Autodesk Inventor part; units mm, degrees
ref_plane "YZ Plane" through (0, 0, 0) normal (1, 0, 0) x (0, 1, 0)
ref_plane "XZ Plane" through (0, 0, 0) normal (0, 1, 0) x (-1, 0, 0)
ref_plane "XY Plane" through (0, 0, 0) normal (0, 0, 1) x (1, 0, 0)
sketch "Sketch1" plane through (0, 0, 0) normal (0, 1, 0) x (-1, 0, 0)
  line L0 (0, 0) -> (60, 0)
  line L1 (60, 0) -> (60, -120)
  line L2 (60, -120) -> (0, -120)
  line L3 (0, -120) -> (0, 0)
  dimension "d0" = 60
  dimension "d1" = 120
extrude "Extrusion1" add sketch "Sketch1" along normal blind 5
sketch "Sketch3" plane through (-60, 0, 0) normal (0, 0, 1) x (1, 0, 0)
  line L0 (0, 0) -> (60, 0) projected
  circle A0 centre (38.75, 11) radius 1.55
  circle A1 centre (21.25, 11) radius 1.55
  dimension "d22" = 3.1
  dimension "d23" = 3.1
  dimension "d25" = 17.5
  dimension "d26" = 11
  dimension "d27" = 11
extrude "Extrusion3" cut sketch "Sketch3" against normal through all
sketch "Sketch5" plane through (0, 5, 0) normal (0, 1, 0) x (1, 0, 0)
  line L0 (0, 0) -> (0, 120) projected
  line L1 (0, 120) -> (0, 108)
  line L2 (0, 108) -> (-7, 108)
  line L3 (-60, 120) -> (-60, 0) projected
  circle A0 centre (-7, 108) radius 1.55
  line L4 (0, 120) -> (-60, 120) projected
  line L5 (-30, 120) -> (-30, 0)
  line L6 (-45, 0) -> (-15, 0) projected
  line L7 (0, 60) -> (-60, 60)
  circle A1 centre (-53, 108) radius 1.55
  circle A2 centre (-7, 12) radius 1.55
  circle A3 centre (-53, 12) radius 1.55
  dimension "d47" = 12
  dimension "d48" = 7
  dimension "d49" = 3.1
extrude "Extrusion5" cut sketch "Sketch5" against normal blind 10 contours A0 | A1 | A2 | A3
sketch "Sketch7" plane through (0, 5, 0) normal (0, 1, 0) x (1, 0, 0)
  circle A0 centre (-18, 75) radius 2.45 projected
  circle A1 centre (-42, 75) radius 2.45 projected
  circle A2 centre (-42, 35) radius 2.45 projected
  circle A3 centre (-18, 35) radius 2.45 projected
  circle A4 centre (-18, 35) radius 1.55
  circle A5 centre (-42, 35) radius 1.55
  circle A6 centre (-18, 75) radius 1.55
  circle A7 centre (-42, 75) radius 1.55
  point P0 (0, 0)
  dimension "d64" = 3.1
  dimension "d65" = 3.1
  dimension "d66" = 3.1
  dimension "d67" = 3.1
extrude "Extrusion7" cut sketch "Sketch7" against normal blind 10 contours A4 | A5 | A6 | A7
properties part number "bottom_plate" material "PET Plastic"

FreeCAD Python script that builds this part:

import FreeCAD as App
import Part
import Sketcher

V = App.Vector


def add_polygon(sketch, points):
    """Adds a closed chain of lines whose ends are joined by coincident constraints."""
    first, n = sketch.GeometryCount, len(points)
    for a, b in zip(points, points[1:] + points[:1]):
        sketch.addGeometry(Part.LineSegment(App.Vector(*a, 0), App.Vector(*b, 0)), False)
    for i in range(n):
        sketch.addConstraint(Sketcher.Constraint("Coincident", first + i, 2, first + (i + 1) % n, 1))

doc = App.newDocument("Part")
body = doc.addObject("PartDesign::Body", "Body")

sketch1 = body.newObject("Sketcher::SketchObject", "Sketch")
sketch1.AttachmentSupport = (doc.getObject("XZ_Plane"), [""])
sketch1.MapMode = "FlatFace"
add_polygon(sketch1, [(-60, 0), (0, 0), (0, -120), (-60, -120)])
sketch1.addConstraint(Sketcher.Constraint("Horizontal", 0))
sketch1.addConstraint(Sketcher.Constraint("Vertical", 1))
sketch1.addConstraint(Sketcher.Constraint("Horizontal", 2))
sketch1.addConstraint(Sketcher.Constraint("Vertical", 3))
sketch1.addConstraint(Sketcher.Constraint("Coincident", 0, 2, -1, 1))
sketch1.addConstraint(Sketcher.Constraint("DistanceX", 0, 1, 0, 2, 60.0))
sketch1.addConstraint(Sketcher.Constraint("DistanceY", 1, 2, 1, 1, 120.0))
pad1 = body.newObject("PartDesign::Pad", "Pad")
pad1.Profile = sketch1
pad1.Length = 5
pad1.Reversed = True

sketch2 = body.newObject("Sketcher::SketchObject", "Sketch001")
sketch2.AttachmentSupport = (doc.getObject("XY_Plane"), [""])
sketch2.MapMode = "FlatFace"
sketch2.addGeometry(Part.Circle(V(-21.2, 11, 0), V(0, 0, 1), 1.6), False)
sketch2.addGeometry(Part.Circle(V(-38.8, 11, 0), V(0, 0, 1), 1.6), False)
sketch2.addConstraint(Sketcher.Constraint("Equal", 0, 1))
sketch2.addConstraint(Sketcher.Constraint("Horizontal", 0, 3, 1, 3))
sketch2.addConstraint(Sketcher.Constraint("Diameter", 0, 3.1))
sketch2.addConstraint(Sketcher.Constraint("DistanceY", -1, 1, 0, 3, 11.0))
sketch2.addConstraint(Sketcher.Constraint("DistanceX", 1, 3, 0, 3, 17.5))
sketch2.addConstraint(Sketcher.Constraint("DistanceX", 0, 3, -1, 1, 21.25))
pocket1 = body.newObject("PartDesign::Pocket", "Pocket")
pocket1.Profile = sketch2
pocket1.Type = "ThroughAll"

sketch3 = body.newObject("Sketcher::SketchObject", "Sketch002")
sketch3.AttachmentSupport = (doc.getObject("XZ_Plane"), [""])
sketch3.MapMode = "FlatFace"
sketch3.AttachmentOffset = App.Placement(V(0, 0, -5), App.Rotation())
sketch3.addGeometry(Part.Circle(V(-7, -108, 0), V(0, 0, 1), 1.6), False)
sketch3.addGeometry(Part.Circle(V(-53, -108, 0), V(0, 0, 1), 1.6), False)
sketch3.addGeometry(Part.Circle(V(-7, -12, 0), V(0, 0, 1), 1.6), False)
sketch3.addGeometry(Part.Circle(V(-53, -12, 0), V(0, 0, 1), 1.6), False)
sketch3.addConstraint(Sketcher.Constraint("Equal", 0, 1))
sketch3.addConstraint(Sketcher.Constraint("Equal", 1, 2))
sketch3.addConstraint(Sketcher.Constraint("Equal", 2, 3))
sketch3.addConstraint(Sketcher.Constraint("Horizontal", 0, 3, 1, 3))
sketch3.addConstraint(Sketcher.Constraint("Horizontal", 2, 3, 3, 3))
sketch3.addConstraint(Sketcher.Constraint("Vertical", 0, 3, 2, 3))
sketch3.addConstraint(Sketcher.Constraint("Vertical", 1, 3, 3, 3))
sketch3.addConstraint(Sketcher.Constraint("Diameter", 0, 3.1))
sketch3.addConstraint(Sketcher.Constraint("DistanceX", 0, 3, -1, 1, 7.0))
sketch3.addConstraint(Sketcher.Constraint("DistanceY", 2, 3, -1, 1, 12.0))
sketch3.addConstraint(Sketcher.Constraint("DistanceY", 0, 3, -1, 1, 108.0))
sketch3.addConstraint(Sketcher.Constraint("DistanceX", 1, 3, -1, 1, 53.0))
pocket2 = body.newObject("PartDesign::Pocket", "Pocket001")
pocket2.Profile = sketch3
pocket2.Length = 10
pocket2.Reversed = True

sketch4 = body.newObject("Sketcher::SketchObject", "Sketch003")
sketch4.AttachmentSupport = (doc.getObject("XZ_Plane"), [""])
sketch4.MapMode = "FlatFace"
sketch4.AttachmentOffset = App.Placement(V(0, 0, -5), App.Rotation())
sketch4.addGeometry(Part.Circle(V(-18, -35, 0), V(0, 0, 1), 1.6), False)
sketch4.addGeometry(Part.Circle(V(-42, -35, 0), V(0, 0, 1), 1.6), False)
sketch4.addGeometry(Part.Circle(V(-18, -75, 0), V(0, 0, 1), 1.6), False)
sketch4.addGeometry(Part.Circle(V(-42, -75, 0), V(0, 0, 1), 1.6), False)
sketch4.addConstraint(Sketcher.Constraint("Equal", 0, 1))
sketch4.addConstraint(Sketcher.Constraint("Equal", 1, 2))
sketch4.addConstraint(Sketcher.Constraint("Equal", 2, 3))
sketch4.addConstraint(Sketcher.Constraint("Horizontal", 0, 3, 1, 3))
sketch4.addConstraint(Sketcher.Constraint("Horizontal", 2, 3, 3, 3))
sketch4.addConstraint(Sketcher.Constraint("Vertical", 0, 3, 2, 3))
sketch4.addConstraint(Sketcher.Constraint("Vertical", 1, 3, 3, 3))
sketch4.addConstraint(Sketcher.Constraint("Diameter", 0, 3.1))
sketch4.addConstraint(Sketcher.Constraint("DistanceX", 0, 3, -1, 1, 18.0))
sketch4.addConstraint(Sketcher.Constraint("DistanceY", 0, 3, -1, 1, 35.0))
sketch4.addConstraint(Sketcher.Constraint("DistanceX", 1, 3, -1, 1, 42.0))
sketch4.addConstraint(Sketcher.Constraint("DistanceY", 2, 3, -1, 1, 75.0))
pocket3 = body.newObject("PartDesign::Pocket", "Pocket002")
pocket3.Profile = sketch4
pocket3.Length = 10
pocket3.Reversed = True

doc.recompute()
